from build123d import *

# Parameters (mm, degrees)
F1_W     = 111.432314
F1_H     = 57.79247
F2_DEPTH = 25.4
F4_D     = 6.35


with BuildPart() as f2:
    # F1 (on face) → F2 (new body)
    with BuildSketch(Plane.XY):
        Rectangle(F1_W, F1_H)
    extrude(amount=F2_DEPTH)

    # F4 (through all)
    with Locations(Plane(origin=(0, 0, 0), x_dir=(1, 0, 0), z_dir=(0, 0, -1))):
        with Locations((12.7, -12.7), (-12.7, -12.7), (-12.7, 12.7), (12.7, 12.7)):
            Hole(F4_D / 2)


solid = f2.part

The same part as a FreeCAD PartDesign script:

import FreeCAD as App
import Part
import Sketcher
from FreeCAD import Vector
Q = App.Units.Quantity


def add_polygon(sketch, points):
    """Adds a closed chain of lines whose ends are joined by coincident constraints."""
    first, n = sketch.GeometryCount, len(points)
    for a, b in zip(points, points[1:] + points[:1]):
        sketch.addGeometry(Part.LineSegment(App.Vector(*a, 0), App.Vector(*b, 0)), False)
    for i in range(n):
        sketch.addConstraint(Sketcher.Constraint("Coincident", first + i, 2, first + (i + 1) % n, 1))

doc = App.newDocument("Part")
params = doc.addObject("Spreadsheet::Sheet", "Params")
for row, (alias, value) in enumerate([
    ("pad1_length", "1 in"),
    ("sketch2_diameter", "0.25 in"),
    ("hole_diameter", "0.25 in"),
], start=1):
    params.set(f"A{row}", alias)
    params.set(f"B{row}", "=" + value)
    params.setAlias(f"B{row}", alias)

body = doc.addObject("PartDesign::Body", "Body")

sketch1 = body.newObject("Sketcher::SketchObject", "Sketch")
sketch1.AttachmentSupport = (doc.getObject("XY_Plane"), [""])
sketch1.MapMode = "FlatFace"
add_polygon(sketch1, [(-56, 29), (-56, -29), (56, -29), (56, 29)])
sketch1.addConstraint([
    Sketcher.Constraint("Vertical", 0),
    Sketcher.Constraint("Horizontal", 1),
    Sketcher.Constraint("Vertical", 2),
    Sketcher.Constraint("Horizontal", 3),
    Sketcher.Constraint("Symmetric", 0, 2, 2, 2, -1, 1),
    Sketcher.Constraint("DistanceY", 0, 2, 0, 1, 57.79247),
    Sketcher.Constraint("DistanceX", 1, 1, 1, 2, 111.432314),
])
pad1 = body.newObject("PartDesign::Pad", "Pad")
pad1.Profile = sketch1
pad1.setExpression("Length", "Params.pad1_length")

sketch2 = body.newObject("Sketcher::SketchObject", "Sketch001")
sketch2.AttachmentSupport = (doc.getObject("XY_Plane"), [""])
sketch2.MapMode = "FlatFace"
sketch2.addGeometry([
    Part.Circle(Vector(12.7, 12.7, 0), Vector(0, 0, 1), 3.2),
    Part.Circle(Vector(-12.7, 12.7, 0), Vector(0, 0, 1), 3.2),
    Part.Circle(Vector(-12.7, -12.7, 0), Vector(0, 0, 1), 3.2),
    Part.Circle(Vector(12.7, -12.7, 0), Vector(0, 0, 1), 3.2),
], False)
sketch2.addConstraint([
    Sketcher.Constraint("Equal", 0, 1),
    Sketcher.Constraint("Equal", 1, 2),
    Sketcher.Constraint("Equal", 2, 3),
    Sketcher.Constraint("Symmetric", 0, 3, 2, 3, -1, 1),
    Sketcher.Constraint("Symmetric", 1, 3, 3, 3, -1, 1),
    Sketcher.Constraint("Symmetric", 0, 3, 1, 3, -2),
    Sketcher.Constraint("Diameter", 0, Q("0.25 in")),
    Sketcher.Constraint("DistanceX", 1, 3, 0, 3, Q("1 in")),
    Sketcher.Constraint("DistanceY", 2, 3, 1, 3, Q("1 in")),
])
sketch2.setExpression("Constraints[6]", "Params.sketch2_diameter")
doc.recompute()
hole = body.newObject("PartDesign::Hole", "Hole")
hole.Profile = sketch2
hole.ThreadType = "None"
hole.setExpression("Diameter", "Params.hole_diameter")
hole.DepthType = "ThroughAll"
hole.Reversed = True

doc.recompute()
